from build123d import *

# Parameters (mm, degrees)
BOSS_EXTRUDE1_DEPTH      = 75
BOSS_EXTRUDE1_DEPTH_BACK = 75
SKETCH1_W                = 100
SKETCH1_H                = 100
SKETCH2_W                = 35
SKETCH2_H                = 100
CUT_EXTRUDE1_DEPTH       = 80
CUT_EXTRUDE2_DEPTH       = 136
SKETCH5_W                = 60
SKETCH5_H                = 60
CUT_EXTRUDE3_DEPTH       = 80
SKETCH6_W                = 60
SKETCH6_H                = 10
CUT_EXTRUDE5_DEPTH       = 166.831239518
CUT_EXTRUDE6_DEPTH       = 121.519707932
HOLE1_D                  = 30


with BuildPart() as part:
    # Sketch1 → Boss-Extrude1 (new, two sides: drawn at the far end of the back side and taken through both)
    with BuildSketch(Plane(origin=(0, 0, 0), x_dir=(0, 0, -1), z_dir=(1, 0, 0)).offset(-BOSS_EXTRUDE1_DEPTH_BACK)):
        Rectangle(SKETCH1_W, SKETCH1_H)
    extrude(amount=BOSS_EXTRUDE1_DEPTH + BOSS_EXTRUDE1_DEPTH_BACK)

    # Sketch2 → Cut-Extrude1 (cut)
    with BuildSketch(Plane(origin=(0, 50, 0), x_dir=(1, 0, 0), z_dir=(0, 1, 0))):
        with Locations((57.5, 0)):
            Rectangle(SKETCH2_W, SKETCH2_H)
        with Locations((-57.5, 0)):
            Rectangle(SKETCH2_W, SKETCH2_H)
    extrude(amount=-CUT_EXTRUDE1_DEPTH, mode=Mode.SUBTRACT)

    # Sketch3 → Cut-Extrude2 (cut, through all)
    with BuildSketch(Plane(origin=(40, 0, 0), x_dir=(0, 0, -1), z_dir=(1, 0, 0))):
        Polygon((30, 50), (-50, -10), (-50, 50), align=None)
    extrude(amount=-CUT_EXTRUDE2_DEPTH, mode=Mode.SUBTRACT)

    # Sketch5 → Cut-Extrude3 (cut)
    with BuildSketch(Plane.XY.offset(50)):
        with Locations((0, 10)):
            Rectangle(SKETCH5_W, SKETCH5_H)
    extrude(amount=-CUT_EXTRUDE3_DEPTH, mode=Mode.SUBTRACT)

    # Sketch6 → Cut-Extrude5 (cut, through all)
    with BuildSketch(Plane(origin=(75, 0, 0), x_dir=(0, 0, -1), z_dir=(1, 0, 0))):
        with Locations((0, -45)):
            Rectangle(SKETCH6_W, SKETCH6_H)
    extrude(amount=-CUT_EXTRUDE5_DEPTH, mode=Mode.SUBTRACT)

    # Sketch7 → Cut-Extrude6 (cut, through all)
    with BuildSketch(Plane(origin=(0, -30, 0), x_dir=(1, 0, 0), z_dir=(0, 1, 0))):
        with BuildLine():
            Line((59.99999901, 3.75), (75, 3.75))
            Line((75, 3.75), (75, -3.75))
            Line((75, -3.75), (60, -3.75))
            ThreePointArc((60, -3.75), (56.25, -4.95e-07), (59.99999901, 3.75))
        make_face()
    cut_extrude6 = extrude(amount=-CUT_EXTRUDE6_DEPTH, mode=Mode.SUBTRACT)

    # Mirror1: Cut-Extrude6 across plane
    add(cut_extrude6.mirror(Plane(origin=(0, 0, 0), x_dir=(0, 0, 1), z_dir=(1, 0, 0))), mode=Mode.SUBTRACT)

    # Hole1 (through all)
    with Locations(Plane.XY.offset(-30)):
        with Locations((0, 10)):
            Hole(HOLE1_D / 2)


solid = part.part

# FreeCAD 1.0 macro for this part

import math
import FreeCAD as App
import Part
import Sketcher


def add_polygon(sketch, points):
    """Adds a closed chain of lines whose ends are joined by coincident constraints."""
    first, n = sketch.GeometryCount, len(points)
    for a, b in zip(points, points[1:] + points[:1]):
        sketch.addGeometry(Part.LineSegment(App.Vector(*a, 0), App.Vector(*b, 0)), False)
    for i in range(n):
        sketch.addConstraint(Sketcher.Constraint("Coincident", first + i, 2, first + (i + 1) % n, 1))

doc = App.newDocument("Part")
params = doc.addObject("Spreadsheet::Sheet", "Params")
for row, (alias, value) in enumerate([
    ("sketch1_width", "100 mm"),
    ("pad1_length", "75 mm"),
    ("pad1_length2", "75 mm"),
    ("sketch2_width", "35 mm"),
    ("sketch2_height", "100 mm"),
    ("pocket1_length", "80 mm"),
    ("sketch3_width", "60 mm"),
    ("sketch3_height", "80 mm"),
    ("sketch4_width", "60 mm"),
    ("pocket3_length", "80 mm"),
    ("sketch5_width", "10 mm"),
    ("sketch5_height", "60 mm"),
    ("sketch6_width", "15.000001 mm"),
    ("sketch6_radius", "3.75 mm"),
    ("sketch7_diameter", "30 mm"),
    ("hole_diameter", "30 mm"),
], start=1):
    params.set(f"A{row}", alias)
    params.set(f"B{row}", "=" + value)
    params.setAlias(f"B{row}", alias)

body = doc.addObject("PartDesign::Body", "Body")

sketch1 = body.newObject("Sketcher::SketchObject", "Sketch")
sketch1.AttachmentSupport = (doc.getObject("YZ_Plane"), [""])
sketch1.MapMode = "FlatFace"
add_polygon(sketch1, [(50, 50), (-50, 50), (-50, -50), (50, -50)])
sketch1.addConstraint(Sketcher.Constraint("Horizontal", 0))
sketch1.addConstraint(Sketcher.Constraint("Vertical", 1))
sketch1.addConstraint(Sketcher.Constraint("Horizontal", 2))
sketch1.addConstraint(Sketcher.Constraint("Vertical", 3))
sketch1.addConstraint(Sketcher.Constraint("Symmetric", 0, 2, 2, 2, -1, 1))
sketch1.addConstraint(Sketcher.Constraint("Equal", 2, 1))
sketch1.addConstraint(Sketcher.Constraint("DistanceX", 0, 2, 0, 1, 100.0))
sketch1.setExpression("Constraints[10]", "Params.sketch1_width")
pad1 = body.newObject("PartDesign::Pad", "Pad")
pad1.Profile = sketch1
pad1.Type = "TwoLengths"
pad1.setExpression("Length", "Params.pad1_length")
pad1.setExpression("Length2", "Params.pad1_length2")

sketch2 = body.newObject("Sketcher::SketchObject", "Sketch001")
sketch2.AttachmentSupport = (doc.getObject("XZ_Plane"), [""])
sketch2.MapMode = "FlatFace"
sketch2.AttachmentOffset = App.Placement(App.Vector(0, 0, -50), App.Rotation())
add_polygon(sketch2, [(40, -50), (40, 50), (75, 50), (75, -50)])
add_polygon(sketch2, [(-75, -50), (-75, 50), (-40, 50), (-40, -50)])
sketch2.addConstraint(Sketcher.Constraint("Vertical", 0))
sketch2.addConstraint(Sketcher.Constraint("Horizontal", 1))
sketch2.addConstraint(Sketcher.Constraint("Vertical", 2))
sketch2.addConstraint(Sketcher.Constraint("Horizontal", 3))
sketch2.addConstraint(Sketcher.Constraint("Vertical", 4))
sketch2.addConstraint(Sketcher.Constraint("Horizontal", 5))
sketch2.addConstraint(Sketcher.Constraint("Vertical", 6))
sketch2.addConstraint(Sketcher.Constraint("Horizontal", 7))
sketch2.addConstraint(Sketcher.Constraint("Symmetric", 2, 2, 4, 2, -1, 1))
sketch2.addConstraint(Sketcher.Constraint("Symmetric", 0, 2, 6, 2, -1, 1))
sketch2.addConstraint(Sketcher.Constraint("Horizontal", 1, 2, 4, 2))
sketch2.addConstraint(Sketcher.Constraint("DistanceX", 1, 1, 1, 2, 35.0))
sketch2.addConstraint(Sketcher.Constraint("DistanceY", 0, 1, 0, 2, 100.0))
sketch2.addConstraint(Sketcher.Constraint("DistanceX", -1, 1, 0, 2, 40.0))
sketch2.setExpression("Constraints[19]", "Params.sketch2_width")
sketch2.setExpression("Constraints[20]", "Params.sketch2_height")
pocket1 = body.newObject("PartDesign::Pocket", "Pocket")
pocket1.Profile = sketch2
pocket1.setExpression("Length", "Params.pocket1_length")
pocket1.Reversed = True

sketch3 = body.newObject("Sketcher::SketchObject", "Sketch002")
sketch3.AttachmentSupport = (doc.getObject("YZ_Plane"), [""])
sketch3.MapMode = "FlatFace"
sketch3.AttachmentOffset = App.Placement(App.Vector(0, 0, 40), App.Rotation())
add_polygon(sketch3, [(-10, 50), (50, -30), (50, 50)])
sketch3.addConstraint(Sketcher.Constraint("Vertical", 1))
sketch3.addConstraint(Sketcher.Constraint("Horizontal", 2))
sketch3.addConstraint(Sketcher.Constraint("DistanceX", 2, 2, 2, 1, 60.0))
sketch3.addConstraint(Sketcher.Constraint("DistanceY", 1, 1, 1, 2, 80.0))
sketch3.addConstraint(Sketcher.Constraint("DistanceX", -1, 1, 0, 2, 50.0))
sketch3.addConstraint(Sketcher.Constraint("DistanceY", 0, 2, -1, 1, 30.0))
sketch3.setExpression("Constraints[5]", "Params.sketch3_width")
sketch3.setExpression("Constraints[6]", "Params.sketch3_height")
pocket2 = body.newObject("PartDesign::Pocket", "Pocket001")
pocket2.Profile = sketch3
pocket2.Type = "ThroughAll"

sketch4 = body.newObject("Sketcher::SketchObject", "Sketch003")
sketch4.AttachmentSupport = (doc.getObject("XY_Plane"), [""])
sketch4.MapMode = "FlatFace"
sketch4.AttachmentOffset = App.Placement(App.Vector(0, 0, 50), App.Rotation())
add_polygon(sketch4, [(-30, 40), (-30, -20), (30, -20), (30, 40)])
sketch4.addConstraint(Sketcher.Constraint("Vertical", 0))
sketch4.addConstraint(Sketcher.Constraint("Horizontal", 1))
sketch4.addConstraint(Sketcher.Constraint("Vertical", 2))
sketch4.addConstraint(Sketcher.Constraint("Horizontal", 3))
sketch4.addConstraint(Sketcher.Constraint("Equal", 3, 0))
sketch4.addConstraint(Sketcher.Constraint("DistanceX", 1, 1, 1, 2, 60.0))
sketch4.addConstraint(Sketcher.Constraint("DistanceX", 0, 2, -1, 1, 30.0))
sketch4.addConstraint(Sketcher.Constraint("DistanceY", 0, 2, -1, 1, 20.0))
sketch4.setExpression("Constraints[9]", "Params.sketch4_width")
pocket3 = body.newObject("PartDesign::Pocket", "Pocket002")
pocket3.Profile = sketch4
pocket3.setExpression("Length", "Params.pocket3_length")

sketch5 = body.newObject("Sketcher::SketchObject", "Sketch004")
sketch5.AttachmentSupport = (doc.getObject("YZ_Plane"), [""])
sketch5.MapMode = "FlatFace"
sketch5.AttachmentOffset = App.Placement(App.Vector(0, 0, 75), App.Rotation())
add_polygon(sketch5, [(-40, 30), (-50, 30), (-50, -30), (-40, -30)])
sketch5.addConstraint(Sketcher.Constraint("Horizontal", 0))
sketch5.addConstraint(Sketcher.Constraint("Vertical", 1))
sketch5.addConstraint(Sketcher.Constraint("Horizontal", 2))
sketch5.addConstraint(Sketcher.Constraint("Vertical", 3))
sketch5.addConstraint(Sketcher.Constraint("DistanceX", 0, 2, 0, 1, 10.0))
sketch5.addConstraint(Sketcher.Constraint("DistanceY", 1, 2, 1, 1, 60.0))
sketch5.addConstraint(Sketcher.Constraint("DistanceX", 0, 2, -1, 1, 50.0))
sketch5.addConstraint(Sketcher.Constraint("DistanceY", -1, 1, 0, 2, 30.0))
sketch5.setExpression("Constraints[8]", "Params.sketch5_width")
sketch5.setExpression("Constraints[9]", "Params.sketch5_height")
pocket4 = body.newObject("PartDesign::Pocket", "Pocket003")
pocket4.Profile = sketch5
pocket4.Type = "ThroughAll"

sketch6 = body.newObject("Sketcher::SketchObject", "Sketch005")
sketch6.AttachmentSupport = (doc.getObject("XZ_Plane"), [""])
sketch6.MapMode = "FlatFace"
sketch6.AttachmentOffset = App.Placement(App.Vector(0, 0, 30), App.Rotation())
sketch6.addGeometry(Part.LineSegment(App.Vector(75, -3.8, 0), App.Vector(60, -3.8, 0)), False)
sketch6.addGeometry(Part.ArcOfCircle(Part.Circle(App.Vector(60, 0, 0), App.Vector(0, 0, 1), 3.8), math.radians(90), math.radians(270)), False)
sketch6.addGeometry(Part.LineSegment(App.Vector(60, 3.8, 0), App.Vector(75, 3.8, 0)), False)
sketch6.addGeometry(Part.LineSegment(App.Vector(75, 3.8, 0), App.Vector(75, -3.8, 0)), False)
sketch6.addConstraint(Sketcher.Constraint("Tangent", 0, 2, 1, 2))
sketch6.addConstraint(Sketcher.Constraint("Tangent", 1, 1, 2, 1))
sketch6.addConstraint(Sketcher.Constraint("Coincident", 2, 2, 3, 1))
sketch6.addConstraint(Sketcher.Constraint("Coincident", 3, 2, 0, 1))
sketch6.addConstraint(Sketcher.Constraint("Horizontal", 0))
sketch6.addConstraint(Sketcher.Constraint("Horizontal", 2))
sketch6.addConstraint(Sketcher.Constraint("Vertical", 3))
sketch6.addConstraint(Sketcher.Constraint("PointOnObject", 1, 3, -1))
sketch6.addConstraint(Sketcher.Constraint("DistanceX", 0, 2, 0, 1, 15.000001))
sketch6.addConstraint(Sketcher.Constraint("Radius", 1, 3.75))
sketch6.addConstraint(Sketcher.Constraint("DistanceX", -1, 1, 1, 3, 60.0))
sketch6.setExpression("Constraints[8]", "Params.sketch6_width")
sketch6.setExpression("Constraints[9]", "Params.sketch6_radius")
pocket5 = body.newObject("PartDesign::Pocket", "Pocket004")
pocket5.Profile = sketch6
pocket5.Type = "ThroughAll"
pocket5.Reversed = True
doc.recompute()

mirrored = body.newObject("PartDesign::Mirrored", "Mirrored")
mirrored.Originals = [pocket5]
mirrored.MirrorPlane = (doc.getObject("YZ_Plane"), [""])
body.Tip = mirrored

sketch7 = body.newObject("Sketcher::SketchObject", "Sketch006")
sketch7.AttachmentSupport = (doc.getObject("XY_Plane"), [""])
sketch7.MapMode = "FlatFace"
sketch7.AttachmentOffset = App.Placement(App.Vector(0, 0, -30), App.Rotation())
sketch7.addGeometry(Part.Circle(App.Vector(0, 10, 0), App.Vector(0, 0, 1), 15), False)
sketch7.addConstraint(Sketcher.Constraint("PointOnObject", 0, 3, -2))
sketch7.addConstraint(Sketcher.Constraint("Diameter", 0, 30.0))
sketch7.addConstraint(Sketcher.Constraint("DistanceY", -1, 1, 0, 3, 10.0))
sketch7.setExpression("Constraints[1]", "Params.sketch7_diameter")
doc.recompute()
hole = body.newObject("PartDesign::Hole", "Hole")
hole.Profile = sketch7
hole.ThreadType = "None"
hole.setExpression("Diameter", "Params.hole_diameter")
hole.DepthType = "ThroughAll"

doc.recompute()
